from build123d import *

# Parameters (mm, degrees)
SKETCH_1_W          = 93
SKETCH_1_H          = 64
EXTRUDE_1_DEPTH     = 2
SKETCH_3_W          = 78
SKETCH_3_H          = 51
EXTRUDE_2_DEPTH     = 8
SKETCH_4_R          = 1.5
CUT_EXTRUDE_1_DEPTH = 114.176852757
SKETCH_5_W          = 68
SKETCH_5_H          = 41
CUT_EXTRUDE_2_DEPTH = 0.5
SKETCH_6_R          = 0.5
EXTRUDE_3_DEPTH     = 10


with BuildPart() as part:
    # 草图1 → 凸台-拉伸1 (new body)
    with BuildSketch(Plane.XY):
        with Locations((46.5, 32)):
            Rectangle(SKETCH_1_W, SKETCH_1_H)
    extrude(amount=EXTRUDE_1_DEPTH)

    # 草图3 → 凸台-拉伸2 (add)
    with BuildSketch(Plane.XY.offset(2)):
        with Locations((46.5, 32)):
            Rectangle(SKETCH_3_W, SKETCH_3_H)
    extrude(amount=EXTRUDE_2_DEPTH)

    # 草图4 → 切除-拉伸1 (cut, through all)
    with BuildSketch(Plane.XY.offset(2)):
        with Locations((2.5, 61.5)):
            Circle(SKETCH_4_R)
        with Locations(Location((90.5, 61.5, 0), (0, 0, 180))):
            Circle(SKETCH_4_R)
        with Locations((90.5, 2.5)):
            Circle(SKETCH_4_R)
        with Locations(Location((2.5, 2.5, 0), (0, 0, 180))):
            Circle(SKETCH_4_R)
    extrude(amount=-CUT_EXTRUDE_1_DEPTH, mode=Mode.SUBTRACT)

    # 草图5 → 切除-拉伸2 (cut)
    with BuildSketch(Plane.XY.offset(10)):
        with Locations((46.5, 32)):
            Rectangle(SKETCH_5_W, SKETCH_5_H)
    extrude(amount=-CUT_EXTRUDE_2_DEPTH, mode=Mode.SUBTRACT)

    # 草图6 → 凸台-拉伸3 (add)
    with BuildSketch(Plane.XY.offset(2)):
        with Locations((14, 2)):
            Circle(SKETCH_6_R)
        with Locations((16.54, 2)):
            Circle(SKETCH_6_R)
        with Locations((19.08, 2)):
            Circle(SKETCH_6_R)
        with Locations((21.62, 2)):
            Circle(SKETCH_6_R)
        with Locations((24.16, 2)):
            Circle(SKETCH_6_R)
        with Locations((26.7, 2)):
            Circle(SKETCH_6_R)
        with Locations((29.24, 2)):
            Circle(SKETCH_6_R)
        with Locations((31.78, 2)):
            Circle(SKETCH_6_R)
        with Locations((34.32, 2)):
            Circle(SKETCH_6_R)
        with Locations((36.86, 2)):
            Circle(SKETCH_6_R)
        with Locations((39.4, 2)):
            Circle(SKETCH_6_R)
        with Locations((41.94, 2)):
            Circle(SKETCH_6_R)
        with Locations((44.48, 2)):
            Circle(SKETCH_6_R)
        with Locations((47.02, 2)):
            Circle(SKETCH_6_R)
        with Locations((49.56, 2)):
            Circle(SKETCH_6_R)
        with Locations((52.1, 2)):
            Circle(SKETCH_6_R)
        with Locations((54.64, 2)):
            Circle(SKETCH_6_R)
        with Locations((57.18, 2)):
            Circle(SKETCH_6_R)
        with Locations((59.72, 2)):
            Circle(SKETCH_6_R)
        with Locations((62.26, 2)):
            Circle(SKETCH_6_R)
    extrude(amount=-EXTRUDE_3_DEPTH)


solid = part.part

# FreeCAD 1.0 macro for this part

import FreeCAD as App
import Part
import Sketcher
from FreeCAD import Vector


def add_polygon(sketch, points):
    """Adds a closed chain of lines whose ends are joined by coincident constraints."""
    first, n = sketch.GeometryCount, len(points)
    for a, b in zip(points, points[1:] + points[:1]):
        sketch.addGeometry(Part.LineSegment(App.Vector(*a, 0), App.Vector(*b, 0)), False)
    for i in range(n):
        sketch.addConstraint(Sketcher.Constraint("Coincident", first + i, 2, first + (i + 1) % n, 1))

doc = App.newDocument("Part")
body = doc.addObject("PartDesign::Body", "Body")

# Sketch on XY plane
sketch1 = body.newObject("Sketcher::SketchObject", "Sketch")
sketch1.AttachmentSupport = (doc.getObject("XY_Plane"), [""])
sketch1.MapMode = "FlatFace"
add_polygon(sketch1, [(0, 64), (0, 0), (93, 0), (93, 64)])  # lines 0-3
sketch1.addConstraint([
    Sketcher.Constraint("Vertical", 0),
    Sketcher.Constraint("Horizontal", 1),
    Sketcher.Constraint("Vertical", 2),
    Sketcher.Constraint("Horizontal", 3),
    Sketcher.Constraint("Coincident", 0, 2, -1, 1),
    Sketcher.Constraint("DistanceX", 1, 1, 1, 2, 93.0),
    Sketcher.Constraint("DistanceY", 0, 2, 0, 1, 64.0),
])
pad1 = body.newObject("PartDesign::Pad", "Pad")
pad1.Profile = sketch1
pad1.Length = 2

# Sketch on XY plane
sketch2 = body.newObject("Sketcher::SketchObject", "Sketch001")
sketch2.AttachmentSupport = (doc.getObject("XY_Plane"), [""])
sketch2.MapMode = "FlatFace"
sketch2.AttachmentOffset = App.Placement(Vector(0, 0, 2), App.Rotation())
add_polygon(sketch2, [(8, 58), (8, 6), (86, 6), (86, 58)])  # lines 0-3
sketch2.addConstraint([
    Sketcher.Constraint("Vertical", 0),
    Sketcher.Constraint("Horizontal", 1),
    Sketcher.Constraint("Vertical", 2),
    Sketcher.Constraint("Horizontal", 3),
    Sketcher.Constraint("DistanceX", 1, 1, 1, 2, 78.0),
    Sketcher.Constraint("DistanceY", 0, 2, 0, 1, 51.0),
    Sketcher.Constraint("DistanceX", -1, 1, 0, 2, 7.5),
    Sketcher.Constraint("DistanceY", -1, 1, 0, 2, 6.5),
])
pad2 = body.newObject("PartDesign::Pad", "Pad001")
pad2.Profile = sketch2
pad2.Length = 8

# Sketch on XY plane
sketch3 = body.newObject("Sketcher::SketchObject", "Sketch002")
sketch3.AttachmentSupport = (doc.getObject("XY_Plane"), [""])
sketch3.MapMode = "FlatFace"
sketch3.AttachmentOffset = App.Placement(Vector(0, 0, 2), App.Rotation())
sketch3.addGeometry([
    Part.Circle(Vector(2.5, 61.5, 0), Vector(0, 0, 1), 1.5),
    Part.Circle(Vector(90.5, 61.5, 0), Vector(0, 0, 1), 1.5),
    Part.Circle(Vector(90.5, 2.5, 0), Vector(0, 0, 1), 1.5),
    Part.Circle(Vector(2.5, 2.5, 0), Vector(0, 0, 1), 1.5),
], False)
sketch3.addConstraint([
    Sketcher.Constraint("Equal", 0, 1),
    Sketcher.Constraint("Equal", 1, 2),
    Sketcher.Constraint("Equal", 2, 3),
    Sketcher.Constraint("Horizontal", 0, 3, 1, 3),
    Sketcher.Constraint("Horizontal", 2, 3, 3, 3),
    Sketcher.Constraint("Vertical", 1, 3, 2, 3),
    Sketcher.Constraint("Vertical", 0, 3, 3, 3),
    Sketcher.Constraint("Diameter", 0, 3.0),
    Sketcher.Constraint("DistanceX", 0, 3, 1, 3, 88.0),
    Sketcher.Constraint("DistanceY", 2, 3, 1, 3, 59.0),
    Sketcher.Constraint("DistanceX", -1, 1, 0, 3, 2.5),
    Sketcher.Constraint("DistanceY", -1, 1, 0, 3, 61.5),
])
pocket1 = body.newObject("PartDesign::Pocket", "Pocket")
pocket1.Profile = sketch3
pocket1.Type = "ThroughAll"

# Sketch on XY plane
sketch4 = body.newObject("Sketcher::SketchObject", "Sketch003")
sketch4.AttachmentSupport = (doc.getObject("XY_Plane"), [""])
sketch4.MapMode = "FlatFace"
sketch4.AttachmentOffset = App.Placement(Vector(0, 0, 10), App.Rotation())
add_polygon(sketch4, [(12, 52), (12, 12), (80, 12), (80, 52)])  # lines 0-3
sketch4.addConstraint([
    Sketcher.Constraint("Vertical", 0),
    Sketcher.Constraint("Horizontal", 1),
    Sketcher.Constraint("Vertical", 2),
    Sketcher.Constraint("Horizontal", 3),
    Sketcher.Constraint("DistanceX", 1, 1, 1, 2, 68.0),
    Sketcher.Constraint("DistanceY", 0, 2, 0, 1, 41.0),
    Sketcher.Constraint("DistanceX", -1, 1, 0, 2, 12.5),
    Sketcher.Constraint("DistanceY", -1, 1, 0, 2, 11.5),
])
pocket2 = body.newObject("PartDesign::Pocket", "Pocket001")
pocket2.Profile = sketch4
pocket2.Length = 0.5

# Sketch on XY plane
sketch5 = body.newObject("Sketcher::SketchObject", "Sketch004")
sketch5.AttachmentSupport = (doc.getObject("XY_Plane"), [""])
sketch5.MapMode = "FlatFace"
sketch5.AttachmentOffset = App.Placement(Vector(0, 0, 2), App.Rotation())
sketch5.addGeometry([
    Part.Circle(Vector(14, 2, 0), Vector(0, 0, 1), 0.5),  # 0
    Part.Circle(Vector(16.5, 2, 0), Vector(0, 0, 1), 0.5),  # 1
    Part.Circle(Vector(19.1, 2, 0), Vector(0, 0, 1), 0.5),  # 2
    Part.Circle(Vector(21.6, 2, 0), Vector(0, 0, 1), 0.5),  # 3
    Part.Circle(Vector(24.2, 2, 0), Vector(0, 0, 1), 0.5),  # 4
    Part.Circle(Vector(26.7, 2, 0), Vector(0, 0, 1), 0.5),  # 5
    Part.Circle(Vector(29.2, 2, 0), Vector(0, 0, 1), 0.5),  # 6
    Part.Circle(Vector(31.8, 2, 0), Vector(0, 0, 1), 0.5),  # 7
    Part.Circle(Vector(34.3, 2, 0), Vector(0, 0, 1), 0.5),  # 8
    Part.Circle(Vector(36.9, 2, 0), Vector(0, 0, 1), 0.5),  # 9
    Part.Circle(Vector(39.4, 2, 0), Vector(0, 0, 1), 0.5),  # 10
    Part.Circle(Vector(41.9, 2, 0), Vector(0, 0, 1), 0.5),  # 11
    Part.Circle(Vector(44.5, 2, 0), Vector(0, 0, 1), 0.5),  # 12
    Part.Circle(Vector(47, 2, 0), Vector(0, 0, 1), 0.5),  # 13
    Part.Circle(Vector(49.6, 2, 0), Vector(0, 0, 1), 0.5),  # 14
    Part.Circle(Vector(52.1, 2, 0), Vector(0, 0, 1), 0.5),  # 15
    Part.Circle(Vector(54.6, 2, 0), Vector(0, 0, 1), 0.5),  # 16
    Part.Circle(Vector(57.2, 2, 0), Vector(0, 0, 1), 0.5),  # 17
    Part.Circle(Vector(59.7, 2, 0), Vector(0, 0, 1), 0.5),  # 18
    Part.Circle(Vector(62.3, 2, 0), Vector(0, 0, 1), 0.5),  # 19
], False)
sketch5.addConstraint([
    Sketcher.Constraint("Equal", 0, 1),
    Sketcher.Constraint("Equal", 1, 2),
    Sketcher.Constraint("Equal", 2, 3),
    Sketcher.Constraint("Equal", 3, 4),
    Sketcher.Constraint("Equal", 4, 5),
    Sketcher.Constraint("Equal", 5, 6),
    Sketcher.Constraint("Equal", 6, 7),
    Sketcher.Constraint("Equal", 7, 8),
    Sketcher.Constraint("Equal", 8, 9),
    Sketcher.Constraint("Equal", 9, 10),
    Sketcher.Constraint("Equal", 10, 11),
    Sketcher.Constraint("Equal", 11, 12),
    Sketcher.Constraint("Equal", 12, 13),
    Sketcher.Constraint("Equal", 13, 14),
    Sketcher.Constraint("Equal", 14, 15),
    Sketcher.Constraint("Equal", 15, 16),
    Sketcher.Constraint("Equal", 16, 17),
    Sketcher.Constraint("Equal", 17, 18),
    Sketcher.Constraint("Equal", 18, 19),
    Sketcher.Constraint("Horizontal", 0, 3, 1, 3),
    Sketcher.Constraint("Horizontal", 1, 3, 2, 3),
    Sketcher.Constraint("Horizontal", 2, 3, 3, 3),
    Sketcher.Constraint("Horizontal", 3, 3, 4, 3),
    Sketcher.Constraint("Horizontal", 4, 3, 5, 3),
    Sketcher.Constraint("Horizontal", 5, 3, 6, 3),
    Sketcher.Constraint("Horizontal", 6, 3, 7, 3),
    Sketcher.Constraint("Horizontal", 7, 3, 8, 3),
    Sketcher.Constraint("Horizontal", 8, 3, 9, 3),
    Sketcher.Constraint("Horizontal", 9, 3, 10, 3),
    Sketcher.Constraint("Horizontal", 10, 3, 11, 3),
    Sketcher.Constraint("Horizontal", 11, 3, 12, 3),
    Sketcher.Constraint("Horizontal", 12, 3, 13, 3),
    Sketcher.Constraint("Horizontal", 13, 3, 14, 3),
    Sketcher.Constraint("Horizontal", 14, 3, 15, 3),
    Sketcher.Constraint("Horizontal", 15, 3, 16, 3),
    Sketcher.Constraint("Horizontal", 16, 3, 17, 3),
    Sketcher.Constraint("Horizontal", 17, 3, 18, 3),
    Sketcher.Constraint("Horizontal", 18, 3, 19, 3),
    Sketcher.Constraint("Diameter", 0, 1.0),
    Sketcher.Constraint("DistanceX", -1, 1, 0, 3, 14.0),
    Sketcher.Constraint("DistanceY", -1, 1, 0, 3, 2.0),
    Sketcher.Constraint("DistanceX", -1, 1, 5, 3, 26.7),
    Sketcher.Constraint("DistanceX", -1, 1, 10, 3, 39.4),
    Sketcher.Constraint("DistanceX", -1, 1, 15, 3, 52.1),
    Sketcher.Constraint("DistanceX", 1, 3, 6, 3, 12.7),
    Sketcher.Constraint("DistanceX", 2, 3, 7, 3, 12.7),
    Sketcher.Constraint("DistanceX", 3, 3, 8, 3, 12.7),
    Sketcher.Constraint("DistanceX", 4, 3, 9, 3, 12.7),
    Sketcher.Constraint("DistanceX", 6, 3, 11, 3, 12.7),
    Sketcher.Constraint("DistanceX", 7, 3, 12, 3, 12.7),
    Sketcher.Constraint("DistanceX", 8, 3, 13, 3, 12.7),
    Sketcher.Constraint("DistanceX", 9, 3, 14, 3, 12.7),
    Sketcher.Constraint("DistanceX", 11, 3, 16, 3, 12.7),
    Sketcher.Constraint("DistanceX", 12, 3, 17, 3, 12.7),
    Sketcher.Constraint("DistanceX", 13, 3, 18, 3, 12.7),
    Sketcher.Constraint("DistanceX", 14, 3, 19, 3, 12.7),
    Sketcher.Constraint("DistanceX", -1, 1, 1, 3, 16.54),
    Sketcher.Constraint("DistanceX", -1, 1, 2, 3, 19.08),
    Sketcher.Constraint("DistanceX", -1, 1, 3, 3, 21.62),
    Sketcher.Constraint("DistanceX", -1, 1, 4, 3, 24.16),
])
pad3 = body.newObject("PartDesign::Pad", "Pad002")
pad3.Profile = sketch5
pad3.Length = 10
pad3.Reversed = True

doc.recompute()
